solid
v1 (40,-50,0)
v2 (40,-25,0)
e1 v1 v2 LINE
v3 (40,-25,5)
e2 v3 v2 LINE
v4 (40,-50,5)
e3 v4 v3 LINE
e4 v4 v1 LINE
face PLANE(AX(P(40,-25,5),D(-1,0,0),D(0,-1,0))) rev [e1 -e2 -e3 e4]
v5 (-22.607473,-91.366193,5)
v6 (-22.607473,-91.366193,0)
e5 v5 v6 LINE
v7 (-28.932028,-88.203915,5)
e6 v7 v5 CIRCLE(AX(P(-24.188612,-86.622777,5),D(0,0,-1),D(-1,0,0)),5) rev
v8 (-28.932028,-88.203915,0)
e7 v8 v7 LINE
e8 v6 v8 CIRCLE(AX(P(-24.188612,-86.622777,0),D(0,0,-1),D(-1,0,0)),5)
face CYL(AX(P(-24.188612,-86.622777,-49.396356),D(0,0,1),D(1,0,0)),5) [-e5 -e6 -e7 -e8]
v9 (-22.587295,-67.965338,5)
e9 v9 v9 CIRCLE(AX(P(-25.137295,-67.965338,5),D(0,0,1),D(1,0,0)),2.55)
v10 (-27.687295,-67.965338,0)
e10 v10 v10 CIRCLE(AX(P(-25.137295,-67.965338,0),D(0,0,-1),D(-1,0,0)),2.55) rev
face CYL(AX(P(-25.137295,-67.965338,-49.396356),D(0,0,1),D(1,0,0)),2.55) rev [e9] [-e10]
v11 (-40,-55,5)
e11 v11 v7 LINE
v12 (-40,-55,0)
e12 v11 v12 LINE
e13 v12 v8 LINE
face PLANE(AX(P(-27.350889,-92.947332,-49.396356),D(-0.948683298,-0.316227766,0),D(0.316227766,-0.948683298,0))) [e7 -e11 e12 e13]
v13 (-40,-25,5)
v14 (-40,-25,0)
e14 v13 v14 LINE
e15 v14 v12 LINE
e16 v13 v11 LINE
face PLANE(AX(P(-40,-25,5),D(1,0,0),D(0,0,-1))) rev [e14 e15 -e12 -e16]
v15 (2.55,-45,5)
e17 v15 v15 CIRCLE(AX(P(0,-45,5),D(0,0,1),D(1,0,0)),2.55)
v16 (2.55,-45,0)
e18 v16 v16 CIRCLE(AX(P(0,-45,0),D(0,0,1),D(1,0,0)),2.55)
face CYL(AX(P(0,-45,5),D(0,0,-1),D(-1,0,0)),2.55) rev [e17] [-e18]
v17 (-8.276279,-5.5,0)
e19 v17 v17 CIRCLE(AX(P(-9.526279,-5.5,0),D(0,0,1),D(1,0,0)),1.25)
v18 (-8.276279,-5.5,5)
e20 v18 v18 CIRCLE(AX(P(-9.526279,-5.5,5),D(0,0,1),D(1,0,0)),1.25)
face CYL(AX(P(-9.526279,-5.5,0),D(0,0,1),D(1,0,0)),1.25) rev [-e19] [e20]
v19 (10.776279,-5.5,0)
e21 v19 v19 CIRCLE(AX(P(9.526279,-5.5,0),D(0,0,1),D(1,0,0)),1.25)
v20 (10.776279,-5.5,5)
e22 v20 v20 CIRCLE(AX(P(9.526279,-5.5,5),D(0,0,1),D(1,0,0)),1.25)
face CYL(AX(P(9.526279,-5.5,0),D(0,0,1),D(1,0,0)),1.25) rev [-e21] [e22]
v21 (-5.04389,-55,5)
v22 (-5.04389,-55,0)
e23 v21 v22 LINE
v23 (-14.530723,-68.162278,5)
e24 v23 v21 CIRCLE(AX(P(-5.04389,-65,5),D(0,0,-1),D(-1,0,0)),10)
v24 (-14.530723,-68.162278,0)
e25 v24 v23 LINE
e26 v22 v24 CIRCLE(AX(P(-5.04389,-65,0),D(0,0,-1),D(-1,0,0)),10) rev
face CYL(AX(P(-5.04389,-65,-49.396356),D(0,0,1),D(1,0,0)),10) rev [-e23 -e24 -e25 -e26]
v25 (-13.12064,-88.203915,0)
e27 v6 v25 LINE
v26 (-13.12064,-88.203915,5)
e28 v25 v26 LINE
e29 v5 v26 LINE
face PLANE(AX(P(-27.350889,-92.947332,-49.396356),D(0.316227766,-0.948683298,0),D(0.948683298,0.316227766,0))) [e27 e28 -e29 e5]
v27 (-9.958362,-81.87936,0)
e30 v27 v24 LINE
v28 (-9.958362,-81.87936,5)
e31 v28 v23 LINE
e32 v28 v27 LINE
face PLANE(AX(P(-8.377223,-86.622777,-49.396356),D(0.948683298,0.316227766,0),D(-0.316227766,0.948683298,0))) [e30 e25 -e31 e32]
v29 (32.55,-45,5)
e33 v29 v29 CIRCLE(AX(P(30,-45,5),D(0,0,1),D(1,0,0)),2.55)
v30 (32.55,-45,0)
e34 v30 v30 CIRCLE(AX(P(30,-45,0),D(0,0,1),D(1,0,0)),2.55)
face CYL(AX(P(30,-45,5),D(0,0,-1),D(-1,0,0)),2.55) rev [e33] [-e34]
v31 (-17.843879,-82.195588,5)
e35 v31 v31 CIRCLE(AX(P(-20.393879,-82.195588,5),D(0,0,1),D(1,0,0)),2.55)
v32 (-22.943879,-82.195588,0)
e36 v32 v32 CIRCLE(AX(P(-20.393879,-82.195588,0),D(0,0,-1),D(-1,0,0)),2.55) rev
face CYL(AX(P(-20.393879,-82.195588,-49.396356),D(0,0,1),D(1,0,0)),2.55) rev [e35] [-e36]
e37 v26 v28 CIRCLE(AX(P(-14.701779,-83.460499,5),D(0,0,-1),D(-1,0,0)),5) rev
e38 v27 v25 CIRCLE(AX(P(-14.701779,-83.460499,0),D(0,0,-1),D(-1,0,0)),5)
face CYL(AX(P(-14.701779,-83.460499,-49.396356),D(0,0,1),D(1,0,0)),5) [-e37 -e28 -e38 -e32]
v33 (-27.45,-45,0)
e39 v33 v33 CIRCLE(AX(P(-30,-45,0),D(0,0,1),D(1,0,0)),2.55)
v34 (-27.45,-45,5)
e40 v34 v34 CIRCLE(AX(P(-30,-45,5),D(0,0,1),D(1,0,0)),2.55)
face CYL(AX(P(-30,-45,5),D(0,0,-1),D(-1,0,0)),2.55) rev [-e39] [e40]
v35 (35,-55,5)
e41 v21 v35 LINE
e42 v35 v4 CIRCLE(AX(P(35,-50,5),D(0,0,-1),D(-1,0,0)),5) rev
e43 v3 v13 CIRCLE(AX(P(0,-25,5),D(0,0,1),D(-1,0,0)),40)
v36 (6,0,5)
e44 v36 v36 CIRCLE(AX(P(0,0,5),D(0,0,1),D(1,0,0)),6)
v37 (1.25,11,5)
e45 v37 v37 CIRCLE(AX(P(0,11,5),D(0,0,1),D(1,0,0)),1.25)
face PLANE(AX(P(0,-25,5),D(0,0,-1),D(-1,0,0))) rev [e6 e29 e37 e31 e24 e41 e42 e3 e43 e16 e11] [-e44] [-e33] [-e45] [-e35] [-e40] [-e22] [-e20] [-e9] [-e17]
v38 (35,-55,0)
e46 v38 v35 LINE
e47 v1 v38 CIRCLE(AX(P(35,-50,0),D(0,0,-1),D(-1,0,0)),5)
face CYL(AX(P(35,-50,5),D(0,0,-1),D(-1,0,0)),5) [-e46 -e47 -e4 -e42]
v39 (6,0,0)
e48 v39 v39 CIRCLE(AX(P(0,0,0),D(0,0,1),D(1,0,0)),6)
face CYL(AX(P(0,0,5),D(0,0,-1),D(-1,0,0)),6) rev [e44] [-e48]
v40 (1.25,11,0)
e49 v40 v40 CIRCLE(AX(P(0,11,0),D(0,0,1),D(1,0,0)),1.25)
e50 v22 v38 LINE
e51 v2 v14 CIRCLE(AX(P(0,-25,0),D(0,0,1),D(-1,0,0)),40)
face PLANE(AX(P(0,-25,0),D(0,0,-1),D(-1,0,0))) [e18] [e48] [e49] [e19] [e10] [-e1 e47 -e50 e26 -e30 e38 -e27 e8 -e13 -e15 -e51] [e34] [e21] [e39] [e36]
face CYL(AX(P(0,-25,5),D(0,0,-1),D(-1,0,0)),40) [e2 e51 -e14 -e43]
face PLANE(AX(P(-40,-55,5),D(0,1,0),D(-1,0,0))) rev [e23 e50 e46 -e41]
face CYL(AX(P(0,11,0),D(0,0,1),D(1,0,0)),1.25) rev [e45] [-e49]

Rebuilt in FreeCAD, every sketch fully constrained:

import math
import FreeCAD as App
import Part
import Sketcher

V = App.Vector
Q = App.Units.Quantity


def edges_at(feature, points):
    """Names of the edges that pass closest to the given points."""
    edges = feature.Shape.Edges
    near = lambda p: min(range(len(edges)), key=lambda i: edges[i].distToShape(Part.Vertex(*p))[0])
    return sorted({f"Edge{near(p) + 1}" for p in points})

doc = App.newDocument("Part")
body = doc.addObject("PartDesign::Body", "Body")

# Sketch on XY plane
sketch1 = body.newObject("Sketcher::SketchObject", "Sketch")
sketch1.AttachmentSupport = (doc.getObject("XY_Plane"), [""])
sketch1.MapMode = "FlatFace"
sketch1.addGeometry([
    Part.LineSegment(V(-40, -55, 0), V(40, -55, 0)),  # 0
    Part.LineSegment(V(40, -55, 0), V(40, -25, 0)),  # 1
    Part.ArcOfCircle(Part.Circle(V(0, -25, 0), V(0, 0, 1), 40), math.radians(0), math.radians(180)),  # 2
    Part.LineSegment(V(-40, -25, 0), V(-40, -55, 0)),  # 3
    Part.Circle(V(-30, -45, 0), V(0, 0, 1), 2.5),  # 4
    Part.Circle(V(0, -45, 0), V(0, 0, 1), 2.5),  # 5
    Part.Circle(V(30, -45, 0), V(0, 0, 1), 2.5),  # 6
    Part.Circle(V(0, 0, 0), V(0, 0, 1), 6),  # 7
], False)
sketch1.addConstraint([
    Sketcher.Constraint("Coincident", 0, 2, 1, 1),
    Sketcher.Constraint("Tangent", 1, 2, 2, 1),
    Sketcher.Constraint("Tangent", 2, 2, 3, 1),
    Sketcher.Constraint("Coincident", 3, 2, 0, 1),
    Sketcher.Constraint("Horizontal", 0),
    Sketcher.Constraint("Vertical", 1),
    Sketcher.Constraint("Vertical", 3),
    Sketcher.Constraint("Coincident", 7, 3, -1, 1),
    Sketcher.Constraint("Equal", 4, 5),
    Sketcher.Constraint("Equal", 5, 6),
    Sketcher.Constraint("Symmetric", 4, 3, 6, 3, -2),
    Sketcher.Constraint("PointOnObject", 2, 3, -2),
    Sketcher.Constraint("PointOnObject", 5, 3, -2),
    Sketcher.Constraint("Horizontal", 4, 3, 5, 3),
    Sketcher.Constraint("Diameter", 7, Q("12 mm")),
    Sketcher.Constraint("Radius", 2, Q("40 mm")),
    Sketcher.Constraint("Diameter", 4, Q("5.1 mm")),
    Sketcher.Constraint("DistanceY", 1, 1, 1, 2, Q("30 mm")),
    Sketcher.Constraint("DistanceY", 2, 3, -1, 1, Q("25 mm")),
    Sketcher.Constraint("DistanceX", 4, 3, -1, 1, Q("30 mm")),
    Sketcher.Constraint("DistanceY", 4, 3, -1, 1, Q("45 mm")),
])
pad1 = body.newObject("PartDesign::Pad", "Pad")
pad1.Profile = sketch1
pad1.Length = 5

# Sketch on XY plane
sketch2 = body.newObject("Sketcher::SketchObject", "Sketch001")
sketch2.AttachmentSupport = (doc.getObject("XY_Plane"), [""])
sketch2.MapMode = "FlatFace"
sketch2.AttachmentOffset = App.Placement(V(0, 0, 5), App.Rotation())
sketch2.addGeometry([
    Part.LineSegment(V(-40, -55, 0), V(-27.4, -92.9, 0)),  # 0
    Part.LineSegment(V(-27.4, -92.9, 0), V(-8.4, -86.6, 0)),  # 1
    Part.LineSegment(V(-8.4, -86.6, 0), V(-18.9, -55, 0)),  # 2
    Part.LineSegment(V(-18.9, -55, 0), V(-40, -55, 0)),  # 3
    Part.Circle(V(-20.4, -82.2, 0), V(0, 0, 1), 2.5),  # 4
    Part.Circle(V(-25.1, -68, 0), V(0, 0, 1), 2.5),  # 5
], False)
sketch2.addConstraint([
    Sketcher.Constraint("Coincident", 0, 2, 1, 1),
    Sketcher.Constraint("Coincident", 1, 2, 2, 1),
    Sketcher.Constraint("Coincident", 2, 2, 3, 1),
    Sketcher.Constraint("Coincident", 3, 2, 0, 1),
    Sketcher.Constraint("Horizontal", 3),
    Sketcher.Constraint("Equal", 4, 5),
    Sketcher.Constraint("Perpendicular", 0, 1),
    Sketcher.Constraint("Perpendicular", 1, 2),
    Sketcher.Constraint("Diameter", 4, Q("5.1 mm")),
    Sketcher.Constraint("Distance", 0, Q("40 mm")),
    Sketcher.Constraint("Distance", 1, Q("20 mm")),
    Sketcher.Constraint("DistanceY", 2, 2, -1, 1, Q("55 mm")),
    Sketcher.Constraint("DistanceX", 3, 2, -1, 1, Q("40 mm")),
    Sketcher.Constraint("DistanceX", 3, 2, 3, 1, Q("21.081851 mm")),
    Sketcher.Constraint("DistanceX", 4, 3, -1, 1, Q("20.393879 mm")),
    Sketcher.Constraint("DistanceY", 5, 3, -1, 1, Q("67.965338 mm")),
    Sketcher.Constraint("DistanceY", 4, 3, 5, 3, Q("14.230249 mm")),
    Sketcher.Constraint("DistanceX", 5, 3, 1, 2, Q("16.760072 mm")),
])
pad2 = body.newObject("PartDesign::Pad", "Pad001")
pad2.Profile = sketch2
pad2.Length = 5
pad2.Reversed = True
doc.recompute()

fillet = body.newObject("PartDesign::Fillet", "Fillet")
fillet.Base = (pad2, edges_at(pad2, [(-18.918, -55, 2.5)]))
fillet.Radius = 10
doc.recompute()

fillet2 = body.newObject("PartDesign::Fillet", "Fillet001")
fillet2.Base = (fillet, edges_at(fillet, [(-8.377, -86.623, 2.5), (-27.351, -92.947, 2.5), (40, -55, 2.5)]))
fillet2.Radius = 5

# Sketch on XY plane
sketch3 = body.newObject("Sketcher::SketchObject", "Sketch002")
sketch3.AttachmentSupport = (doc.getObject("XY_Plane"), [""])
sketch3.MapMode = "FlatFace"
sketch3.AttachmentOffset = App.Placement(V(0, 0, 5), App.Rotation())
sketch3.addGeometry([
    Part.Circle(V(0, 11, 0), V(0, 0, 1), 1.2),
    Part.Circle(V(9.5, -5.5, 0), V(0, 0, 1), 1.2),
    Part.Circle(V(-9.5, -5.5, 0), V(0, 0, 1), 1.2),
], False)
sketch3.addConstraint([
    Sketcher.Constraint("Equal", 0, 1),
    Sketcher.Constraint("Equal", 1, 2),
    Sketcher.Constraint("Symmetric", 1, 3, 2, 3, -2),
    Sketcher.Constraint("PointOnObject", 0, 3, -2),
    Sketcher.Constraint("Diameter", 0, Q("2.5 mm")),
    Sketcher.Constraint("DistanceY", -1, 1, 0, 3, Q("11 mm")),
    Sketcher.Constraint("DistanceY", 1, 3, -1, 1, Q("5.5 mm")),
    Sketcher.Constraint("DistanceX", -1, 1, 1, 3, Q("9.526279 mm")),
])
pocket1 = body.newObject("PartDesign::Pocket", "Pocket")
pocket1.Profile = sketch3
pocket1.Type = "ThroughAll"

doc.recompute()
